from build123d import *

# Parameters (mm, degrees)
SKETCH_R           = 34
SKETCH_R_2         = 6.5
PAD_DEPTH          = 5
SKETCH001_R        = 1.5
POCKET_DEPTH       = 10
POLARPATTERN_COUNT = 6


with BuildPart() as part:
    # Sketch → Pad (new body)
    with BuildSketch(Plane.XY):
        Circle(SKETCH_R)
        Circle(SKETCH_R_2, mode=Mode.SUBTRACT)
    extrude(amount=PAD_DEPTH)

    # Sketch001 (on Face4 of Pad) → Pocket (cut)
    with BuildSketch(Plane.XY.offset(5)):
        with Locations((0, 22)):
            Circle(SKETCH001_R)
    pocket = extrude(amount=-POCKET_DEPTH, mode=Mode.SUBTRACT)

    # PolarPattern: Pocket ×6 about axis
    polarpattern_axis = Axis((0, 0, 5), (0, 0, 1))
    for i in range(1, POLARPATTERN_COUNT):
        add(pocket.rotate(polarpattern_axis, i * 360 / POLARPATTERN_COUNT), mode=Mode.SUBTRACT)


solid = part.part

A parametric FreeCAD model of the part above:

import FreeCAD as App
import Part
import Sketcher
from FreeCAD import Vector
Q = App.Units.Quantity

doc = App.newDocument("Part")
params = doc.addObject("Spreadsheet::Sheet", "Params")
for row, (alias, value) in enumerate([
    ("sketch1_diameter", "68 mm"),
    ("sketch1_diameter2", "13 mm"),
    ("pad1_length", "5 mm"),
    ("sketch2_diameter", "3 mm"),
    ("pocket1_length", "10 mm"),
], start=1):
    params.set(f"A{row}", alias)
    params.set(f"B{row}", "=" + value)
    params.setAlias(f"B{row}", alias)

body = doc.addObject("PartDesign::Body", "Body")

# Sketch on XY plane
sketch1 = body.newObject("Sketcher::SketchObject", "Sketch")
sketch1.AttachmentSupport = (doc.getObject("XY_Plane"), [""])
sketch1.MapMode = "FlatFace"
sketch1.addGeometry([
    Part.Circle(Vector(0, 0, 0), Vector(0, 0, 1), 34),
    Part.Circle(Vector(0, 0, 0), Vector(0, 0, 1), 6),
], False)
sketch1.addConstraint([
    Sketcher.Constraint("Coincident", 0, 3, -1, 1),
    Sketcher.Constraint("Coincident", 1, 3, -1, 1),
    Sketcher.Constraint("Diameter", 0, Q("68 mm")),
    Sketcher.Constraint("Diameter", 1, Q("13 mm")),
])
sketch1.setExpression("Constraints[2]", "Params.sketch1_diameter")
sketch1.setExpression("Constraints[3]", "Params.sketch1_diameter2")
pad1 = body.newObject("PartDesign::Pad", "Pad")
pad1.Profile = sketch1
pad1.setExpression("Length", "Params.pad1_length")

# Sketch on XY plane
sketch2 = body.newObject("Sketcher::SketchObject", "Sketch001")
sketch2.AttachmentSupport = (doc.getObject("XY_Plane"), [""])
sketch2.MapMode = "FlatFace"
sketch2.AttachmentOffset = App.Placement(Vector(0, 0, 5), App.Rotation())
sketch2.addGeometry(Part.Circle(Vector(0, 22, 0), Vector(0, 0, 1), 1.5), False)
sketch2.addConstraint([
    Sketcher.Constraint("PointOnObject", 0, 3, -2),
    Sketcher.Constraint("Diameter", 0, Q("3 mm")),
    Sketcher.Constraint("DistanceY", -1, 1, 0, 3, Q("22 mm")),
])
sketch2.setExpression("Constraints[1]", "Params.sketch2_diameter")
pocket1 = body.newObject("PartDesign::Pocket", "Pocket")
pocket1.Profile = sketch2
pocket1.setExpression("Length", "Params.pocket1_length")
doc.recompute()

polarpattern = body.newObject("PartDesign::PolarPattern", "PolarPattern")
polarpattern.Originals = [pocket1]
polarpattern.Axis = (doc.getObject("Z_Axis"), [""])
polarpattern.Angle = 360
polarpattern.Occurrences = 6
body.Tip = polarpattern

doc.recompute()
